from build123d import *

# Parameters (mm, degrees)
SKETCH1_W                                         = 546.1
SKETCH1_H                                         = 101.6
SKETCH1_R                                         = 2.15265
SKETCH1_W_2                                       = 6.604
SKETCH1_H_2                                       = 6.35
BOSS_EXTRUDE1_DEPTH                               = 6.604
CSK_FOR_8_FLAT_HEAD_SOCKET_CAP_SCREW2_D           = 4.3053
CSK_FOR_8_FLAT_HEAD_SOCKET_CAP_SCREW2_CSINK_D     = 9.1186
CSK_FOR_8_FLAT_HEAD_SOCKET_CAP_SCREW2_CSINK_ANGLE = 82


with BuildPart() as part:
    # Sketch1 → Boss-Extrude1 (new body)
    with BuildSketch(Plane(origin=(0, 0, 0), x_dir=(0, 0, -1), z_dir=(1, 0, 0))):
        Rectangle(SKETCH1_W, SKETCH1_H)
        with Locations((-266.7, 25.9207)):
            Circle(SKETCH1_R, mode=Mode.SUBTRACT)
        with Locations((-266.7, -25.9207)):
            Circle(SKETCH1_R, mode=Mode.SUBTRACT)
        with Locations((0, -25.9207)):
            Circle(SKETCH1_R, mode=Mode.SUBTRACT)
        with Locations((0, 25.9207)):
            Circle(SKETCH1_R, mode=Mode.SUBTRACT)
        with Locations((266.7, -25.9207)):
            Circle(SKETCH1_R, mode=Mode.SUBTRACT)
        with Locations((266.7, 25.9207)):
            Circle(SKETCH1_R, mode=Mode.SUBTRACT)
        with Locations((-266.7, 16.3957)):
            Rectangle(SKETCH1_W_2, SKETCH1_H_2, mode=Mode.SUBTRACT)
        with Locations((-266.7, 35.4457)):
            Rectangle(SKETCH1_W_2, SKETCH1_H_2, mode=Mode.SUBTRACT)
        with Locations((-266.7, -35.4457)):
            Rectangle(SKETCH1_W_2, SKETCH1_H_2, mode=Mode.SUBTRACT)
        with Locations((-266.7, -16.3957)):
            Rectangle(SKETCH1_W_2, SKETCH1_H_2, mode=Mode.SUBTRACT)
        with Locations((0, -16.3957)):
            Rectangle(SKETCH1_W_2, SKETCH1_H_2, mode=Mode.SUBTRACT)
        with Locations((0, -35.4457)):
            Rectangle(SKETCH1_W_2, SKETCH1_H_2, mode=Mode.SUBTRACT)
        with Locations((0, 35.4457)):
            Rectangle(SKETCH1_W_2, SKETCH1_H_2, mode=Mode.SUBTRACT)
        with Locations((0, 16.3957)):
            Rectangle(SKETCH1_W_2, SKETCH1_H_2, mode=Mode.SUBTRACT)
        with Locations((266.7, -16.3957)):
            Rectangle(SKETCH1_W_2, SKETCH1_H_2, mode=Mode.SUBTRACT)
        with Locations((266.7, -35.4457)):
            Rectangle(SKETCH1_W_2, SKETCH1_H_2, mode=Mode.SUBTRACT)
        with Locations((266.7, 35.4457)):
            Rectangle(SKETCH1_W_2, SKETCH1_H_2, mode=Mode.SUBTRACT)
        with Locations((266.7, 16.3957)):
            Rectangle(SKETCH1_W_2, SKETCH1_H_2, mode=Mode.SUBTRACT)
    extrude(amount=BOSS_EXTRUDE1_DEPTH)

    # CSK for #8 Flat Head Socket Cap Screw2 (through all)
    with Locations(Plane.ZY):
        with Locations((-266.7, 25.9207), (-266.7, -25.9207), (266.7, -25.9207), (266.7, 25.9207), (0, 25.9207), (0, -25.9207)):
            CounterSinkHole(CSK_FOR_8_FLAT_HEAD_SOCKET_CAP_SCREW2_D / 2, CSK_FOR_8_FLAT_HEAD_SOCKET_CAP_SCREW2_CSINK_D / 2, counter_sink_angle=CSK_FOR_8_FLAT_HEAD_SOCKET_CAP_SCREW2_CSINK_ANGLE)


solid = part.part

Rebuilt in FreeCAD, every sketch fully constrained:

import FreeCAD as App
import Part
import Sketcher
from FreeCAD import Vector
Q = App.Units.Quantity

doc = App.newDocument("Part")
body = doc.addObject("PartDesign::Body", "Body")

# Sketch on YZ plane
sketch1 = body.newObject("Sketcher::SketchObject", "Sketch")
sketch1.AttachmentSupport = (doc.getObject("YZ_Plane"), [""])
sketch1.MapMode = "FlatFace"
sketch1.addGeometry([
    Part.LineSegment(Vector(50.8, 273.05, 0), Vector(-50.8, 273.05, 0)),  # 0
    Part.LineSegment(Vector(-50.8, 273.05, 0), Vector(-50.8, -273.05, 0)),  # 1
    Part.LineSegment(Vector(-50.8, -273.05, 0), Vector(50.8, -273.05, 0)),  # 2
    Part.LineSegment(Vector(50.8, -273.05, 0), Vector(50.8, 273.05, 0)),  # 3
    Part.LineSegment(Vector(-38.6207, 263.398, 0), Vector(-38.6207, 270.002, 0)),  # 4
    Part.LineSegment(Vector(-38.6207, 270.002, 0), Vector(-32.2707, 270.002, 0)),  # 5
    Part.LineSegment(Vector(-32.2707, 270.002, 0), Vector(-32.2707, 263.398, 0)),  # 6
    Part.LineSegment(Vector(-32.2707, 263.398, 0), Vector(-38.6207, 263.398, 0)),  # 7
    Part.Circle(Vector(-25.9207, 266.7, 0), Vector(0, 0, 1), 2.15265),  # 8
    Part.LineSegment(Vector(-38.6207, -3.302, 0), Vector(-38.6207, 3.302, 0)),  # 9
    Part.LineSegment(Vector(-38.6207, 3.302, 0), Vector(-32.2707, 3.302, 0)),  # 10
    Part.LineSegment(Vector(-32.2707, 3.302, 0), Vector(-32.2707, -3.302, 0)),  # 11
    Part.LineSegment(Vector(-32.2707, -3.302, 0), Vector(-38.6207, -3.302, 0)),  # 12
    Part.Circle(Vector(-25.9207, 0, 0), Vector(0, 0, 1), 2.15265),  # 13
    Part.LineSegment(Vector(-19.5707, 263.398, 0), Vector(-19.5707, 270.002, 0)),  # 14
    Part.LineSegment(Vector(-19.5707, 270.002, 0), Vector(-13.2207, 270.002, 0)),  # 15
    Part.LineSegment(Vector(-13.2207, 270.002, 0), Vector(-13.2207, 263.398, 0)),  # 16
    Part.LineSegment(Vector(-13.2207, 263.398, 0), Vector(-19.5707, 263.398, 0)),  # 17
    Part.LineSegment(Vector(-19.5707, -3.302, 0), Vector(-19.5707, 3.302, 0)),  # 18
    Part.LineSegment(Vector(-19.5707, 3.302, 0), Vector(-13.2207, 3.302, 0)),  # 19
    Part.LineSegment(Vector(-13.2207, 3.302, 0), Vector(-13.2207, -3.302, 0)),  # 20
    Part.LineSegment(Vector(-13.2207, -3.302, 0), Vector(-19.5707, -3.302, 0)),  # 21
    Part.LineSegment(Vector(-38.6207, -270.002, 0), Vector(-38.6207, -263.398, 0)),  # 22
    Part.LineSegment(Vector(-38.6207, -263.398, 0), Vector(-32.2707, -263.398, 0)),  # 23
    Part.LineSegment(Vector(-32.2707, -263.398, 0), Vector(-32.2707, -270.002, 0)),  # 24
    Part.LineSegment(Vector(-32.2707, -270.002, 0), Vector(-38.6207, -270.002, 0)),  # 25
    Part.Circle(Vector(-25.9207, -266.7, 0), Vector(0, 0, 1), 2.15265),  # 26
    Part.LineSegment(Vector(-19.5707, -270.002, 0), Vector(-19.5707, -263.398, 0)),  # 27
    Part.LineSegment(Vector(-19.5707, -263.398, 0), Vector(-13.2207, -263.398, 0)),  # 28
    Part.LineSegment(Vector(-13.2207, -263.398, 0), Vector(-13.2207, -270.002, 0)),  # 29
    Part.LineSegment(Vector(-13.2207, -270.002, 0), Vector(-19.5707, -270.002, 0)),  # 30
    Part.LineSegment(Vector(13.2207, 263.398, 0), Vector(13.2207, 270.002, 0)),  # 31
    Part.LineSegment(Vector(13.2207, 270.002, 0), Vector(19.5707, 270.002, 0)),  # 32
    Part.LineSegment(Vector(19.5707, 270.002, 0), Vector(19.5707, 263.398, 0)),  # 33
    Part.LineSegment(Vector(19.5707, 263.398, 0), Vector(13.2207, 263.398, 0)),  # 34
    Part.LineSegment(Vector(13.2207, -3.302, 0), Vector(13.2207, 3.302, 0)),  # 35
    Part.LineSegment(Vector(13.2207, 3.302, 0), Vector(19.5707, 3.302, 0)),  # 36
    Part.LineSegment(Vector(19.5707, 3.302, 0), Vector(19.5707, -3.302, 0)),  # 37
    Part.LineSegment(Vector(19.5707, -3.302, 0), Vector(13.2207, -3.302, 0)),  # 38
    Part.Circle(Vector(25.9207, 266.7, 0), Vector(0, 0, 1), 2.15265),  # 39
    Part.LineSegment(Vector(32.2707, 263.398, 0), Vector(32.2707, 270.002, 0)),  # 40
    Part.LineSegment(Vector(32.2707, 270.002, 0), Vector(38.6207, 270.002, 0)),  # 41
    Part.LineSegment(Vector(38.6207, 270.002, 0), Vector(38.6207, 263.398, 0)),  # 42
    Part.LineSegment(Vector(38.6207, 263.398, 0), Vector(32.2707, 263.398, 0)),  # 43
    Part.Circle(Vector(25.9207, 0, 0), Vector(0, 0, 1), 2.15265),  # 44
    Part.LineSegment(Vector(32.2707, -3.302, 0), Vector(32.2707, 3.302, 0)),  # 45
    Part.LineSegment(Vector(32.2707, 3.302, 0), Vector(38.6207, 3.302, 0)),  # 46
    Part.LineSegment(Vector(38.6207, 3.302, 0), Vector(38.6207, -3.302, 0)),  # 47
    Part.LineSegment(Vector(38.6207, -3.302, 0), Vector(32.2707, -3.302, 0)),  # 48
    Part.LineSegment(Vector(13.2207, -270.002, 0), Vector(13.2207, -263.398, 0)),  # 49
    Part.LineSegment(Vector(13.2207, -263.398, 0), Vector(19.5707, -263.398, 0)),  # 50
    Part.LineSegment(Vector(19.5707, -263.398, 0), Vector(19.5707, -270.002, 0)),  # 51
    Part.LineSegment(Vector(19.5707, -270.002, 0), Vector(13.2207, -270.002, 0)),  # 52
    Part.Circle(Vector(25.9207, -266.7, 0), Vector(0, 0, 1), 2.15265),  # 53
    Part.LineSegment(Vector(32.2707, -270.002, 0), Vector(32.2707, -263.398, 0)),  # 54
    Part.LineSegment(Vector(32.2707, -263.398, 0), Vector(38.6207, -263.398, 0)),  # 55
    Part.LineSegment(Vector(38.6207, -263.398, 0), Vector(38.6207, -270.002, 0)),  # 56
    Part.LineSegment(Vector(38.6207, -270.002, 0), Vector(32.2707, -270.002, 0)),  # 57
], False)
sketch1.addConstraint([
    Sketcher.Constraint("Coincident", 0, 2, 1, 1),
    Sketcher.Constraint("Coincident", 1, 2, 2, 1),
    Sketcher.Constraint("Coincident", 2, 2, 3, 1),
    Sketcher.Constraint("Coincident", 3, 2, 0, 1),
    Sketcher.Constraint("Coincident", 4, 2, 5, 1),
    Sketcher.Constraint("Coincident", 5, 2, 6, 1),
    Sketcher.Constraint("Coincident", 6, 2, 7, 1),
    Sketcher.Constraint("Coincident", 7, 2, 4, 1),
    Sketcher.Constraint("Coincident", 9, 2, 10, 1),
    Sketcher.Constraint("Coincident", 10, 2, 11, 1),
    Sketcher.Constraint("Coincident", 11, 2, 12, 1),
    Sketcher.Constraint("Coincident", 12, 2, 9, 1),
    Sketcher.Constraint("Coincident", 14, 2, 15, 1),
    Sketcher.Constraint("Coincident", 15, 2, 16, 1),
    Sketcher.Constraint("Coincident", 16, 2, 17, 1),
    Sketcher.Constraint("Coincident", 17, 2, 14, 1),
    Sketcher.Constraint("Coincident", 18, 2, 19, 1),
    Sketcher.Constraint("Coincident", 19, 2, 20, 1),
    Sketcher.Constraint("Coincident", 20, 2, 21, 1),
    Sketcher.Constraint("Coincident", 21, 2, 18, 1),
    Sketcher.Constraint("Coincident", 22, 2, 23, 1),
    Sketcher.Constraint("Coincident", 23, 2, 24, 1),
    Sketcher.Constraint("Coincident", 24, 2, 25, 1),
    Sketcher.Constraint("Coincident", 25, 2, 22, 1),
    Sketcher.Constraint("Coincident", 27, 2, 28, 1),
    Sketcher.Constraint("Coincident", 28, 2, 29, 1),
    Sketcher.Constraint("Coincident", 29, 2, 30, 1),
    Sketcher.Constraint("Coincident", 30, 2, 27, 1),
    Sketcher.Constraint("Coincident", 31, 2, 32, 1),
    Sketcher.Constraint("Coincident", 32, 2, 33, 1),
    Sketcher.Constraint("Coincident", 33, 2, 34, 1),
    Sketcher.Constraint("Coincident", 34, 2, 31, 1),
    Sketcher.Constraint("Coincident", 35, 2, 36, 1),
    Sketcher.Constraint("Coincident", 36, 2, 37, 1),
    Sketcher.Constraint("Coincident", 37, 2, 38, 1),
    Sketcher.Constraint("Coincident", 38, 2, 35, 1),
    Sketcher.Constraint("Coincident", 40, 2, 41, 1),
    Sketcher.Constraint("Coincident", 41, 2, 42, 1),
    Sketcher.Constraint("Coincident", 42, 2, 43, 1),
    Sketcher.Constraint("Coincident", 43, 2, 40, 1),
    Sketcher.Constraint("Coincident", 45, 2, 46, 1),
    Sketcher.Constraint("Coincident", 46, 2, 47, 1),
    Sketcher.Constraint("Coincident", 47, 2, 48, 1),
    Sketcher.Constraint("Coincident", 48, 2, 45, 1),
    Sketcher.Constraint("Coincident", 49, 2, 50, 1),
    Sketcher.Constraint("Coincident", 50, 2, 51, 1),
    Sketcher.Constraint("Coincident", 51, 2, 52, 1),
    Sketcher.Constraint("Coincident", 52, 2, 49, 1),
    Sketcher.Constraint("Coincident", 54, 2, 55, 1),
    Sketcher.Constraint("Coincident", 55, 2, 56, 1),
    Sketcher.Constraint("Coincident", 56, 2, 57, 1),
    Sketcher.Constraint("Coincident", 57, 2, 54, 1),
    Sketcher.Constraint("Horizontal", 0),
    Sketcher.Constraint("Vertical", 1),
    Sketcher.Constraint("Horizontal", 2),
    Sketcher.Constraint("Vertical", 3),
    Sketcher.Constraint("Vertical", 4),
    Sketcher.Constraint("Horizontal", 5),
    Sketcher.Constraint("Vertical", 6),
    Sketcher.Constraint("Horizontal", 7),
    Sketcher.Constraint("Vertical", 9),
    Sketcher.Constraint("Horizontal", 10),
    Sketcher.Constraint("Vertical", 11),
    Sketcher.Constraint("Horizontal", 12),
    Sketcher.Constraint("Vertical", 14),
    Sketcher.Constraint("Horizontal", 15),
    Sketcher.Constraint("Vertical", 16),
    Sketcher.Constraint("Horizontal", 17),
    Sketcher.Constraint("Vertical", 18),
    Sketcher.Constraint("Horizontal", 19),
    Sketcher.Constraint("Vertical", 20),
    Sketcher.Constraint("Horizontal", 21),
    Sketcher.Constraint("Vertical", 22),
    Sketcher.Constraint("Horizontal", 23),
    Sketcher.Constraint("Vertical", 24),
    Sketcher.Constraint("Horizontal", 25),
    Sketcher.Constraint("Vertical", 27),
    Sketcher.Constraint("Horizontal", 28),
    Sketcher.Constraint("Vertical", 29),
    Sketcher.Constraint("Horizontal", 30),
    Sketcher.Constraint("Vertical", 31),
    Sketcher.Constraint("Horizontal", 32),
    Sketcher.Constraint("Vertical", 33),
    Sketcher.Constraint("Horizontal", 34),
    Sketcher.Constraint("Vertical", 35),
    Sketcher.Constraint("Horizontal", 36),
    Sketcher.Constraint("Vertical", 37),
    Sketcher.Constraint("Horizontal", 38),
    Sketcher.Constraint("Vertical", 40),
    Sketcher.Constraint("Horizontal", 41),
    Sketcher.Constraint("Vertical", 42),
    Sketcher.Constraint("Horizontal", 43),
    Sketcher.Constraint("Vertical", 45),
    Sketcher.Constraint("Horizontal", 46),
    Sketcher.Constraint("Vertical", 47),
    Sketcher.Constraint("Horizontal", 48),
    Sketcher.Constraint("Vertical", 49),
    Sketcher.Constraint("Horizontal", 50),
    Sketcher.Constraint("Vertical", 51),
    Sketcher.Constraint("Horizontal", 52),
    Sketcher.Constraint("Vertical", 54),
    Sketcher.Constraint("Horizontal", 55),
    Sketcher.Constraint("Vertical", 56),
    Sketcher.Constraint("Horizontal", 57),
    Sketcher.Constraint("Equal", 8, 13),
    Sketcher.Constraint("Equal", 13, 26),
    Sketcher.Constraint("Equal", 26, 39),
    Sketcher.Constraint("Equal", 39, 44),
    Sketcher.Constraint("Equal", 44, 53),
    Sketcher.Constraint("Symmetric", 26, 3, 39, 3, -1, 1),
    Sketcher.Constraint("Symmetric", 13, 3, 44, 3, -1, 1),
    Sketcher.Constraint("Symmetric", 8, 3, 53, 3, -1, 1),
    Sketcher.Constraint("Symmetric", 0, 2, 2, 2, -1, 1),
    Sketcher.Constraint("Symmetric", 29, 2, 31, 2, -1, 1),
    Sketcher.Constraint("Symmetric", 27, 2, 33, 2, -1, 1),
    Sketcher.Constraint("Symmetric", 20, 2, 35, 2, -1, 1),
    Sketcher.Constraint("Symmetric", 18, 2, 37, 2, -1, 1),
    Sketcher.Constraint("Symmetric", 24, 2, 40, 2, -1, 1),
    Sketcher.Constraint("Symmetric", 22, 2, 42, 2, -1, 1),
    Sketcher.Constraint("Symmetric", 11, 2, 45, 2, -1, 1),
    Sketcher.Constraint("Symmetric", 9, 2, 47, 2, -1, 1),
    Sketcher.Constraint("Symmetric", 16, 2, 49, 2, -1, 1),
    Sketcher.Constraint("Symmetric", 14, 2, 51, 2, -1, 1),
    Sketcher.Constraint("Symmetric", 6, 2, 54, 2, -1, 1),
    Sketcher.Constraint("Symmetric", 4, 2, 56, 2, -1, 1),
    Sketcher.Constraint("Symmetric", 8, 3, 39, 3, -2),
    Sketcher.Constraint("Symmetric", 15, 2, 31, 2, -2),
    Sketcher.Constraint("Symmetric", 17, 2, 33, 2, -2),
    Sketcher.Constraint("Symmetric", 5, 2, 40, 2, -2),
    Sketcher.Constraint("Symmetric", 7, 2, 42, 2, -2),
    Sketcher.Constraint("PointOnObject", 13, 3, -1),
    Sketcher.Constraint("Horizontal", 5, 2, 14, 2),
    Sketcher.Constraint("Horizontal", 7, 2, 16, 2),
    Sketcher.Constraint("Horizontal", 10, 2, 18, 2),
    Sketcher.Constraint("Horizontal", 12, 2, 20, 2),
    Sketcher.Constraint("Horizontal", 19, 2, 35, 2),
    Sketcher.Constraint("Vertical", 8, 3, 13, 3),
    Sketcher.Constraint("Vertical", 7, 2, 9, 2),
    Sketcher.Constraint("Vertical", 6, 2, 10, 2),
    Sketcher.Constraint("Vertical", 17, 2, 18, 2),
    Sketcher.Constraint("Vertical", 16, 2, 19, 2),
    Sketcher.Constraint("Equal", 12, 15),
    Sketcher.Constraint("Equal", 6, 9),
    Sketcher.Constraint("DistanceX", 0, 2, 0, 1, Q("4 in")),
    Sketcher.Constraint("DistanceY", 1, 2, 1, 1, Q("21.5 in")),
    Sketcher.Constraint("DistanceY", 26, 3, 8, 3, Q("21 in")),
    Sketcher.Constraint("DistanceX", 4, 2, 15, 2, Q("1 in")),
    Sketcher.Constraint("Diameter", 8, Q("0.1695 in")),
    Sketcher.Constraint("DistanceX", 5, 1, 5, 2, Q("0.25 in")),
    Sketcher.Constraint("DistanceY", 4, 1, 4, 2, Q("0.26 in")),
    Sketcher.Constraint("DistanceX", 4, 2, 8, 3, Q("0.5 in")),
    Sketcher.Constraint("DistanceY", -1, 1, 4, 2, Q("10.63 in")),
    Sketcher.Constraint("DistanceX", 8, 3, 39, 3, Q("2.041 in")),
])
pad1 = body.newObject("PartDesign::Pad", "Pad")
pad1.Profile = sketch1
pad1.Length = Q("0.26 in")

# Sketch on YZ plane
sketch2 = body.newObject("Sketcher::SketchObject", "Sketch001")
sketch2.AttachmentSupport = (doc.getObject("YZ_Plane"), [""])
sketch2.MapMode = "FlatFace"
sketch2.addGeometry([
    Part.Circle(Vector(25.9207, -266.7, 0), Vector(0, 0, 1), 2.15265),  # 0
    Part.Circle(Vector(-25.9207, -266.7, 0), Vector(0, 0, 1), 2.15265),  # 1
    Part.Circle(Vector(-25.9207, 266.7, 0), Vector(0, 0, 1), 2.15265),  # 2
    Part.Circle(Vector(25.9207, 266.7, 0), Vector(0, 0, 1), 2.15265),  # 3
    Part.Circle(Vector(25.9207, 0, 0), Vector(0, 0, 1), 2.15265),  # 4
    Part.Circle(Vector(-25.9207, 0, 0), Vector(0, 0, 1), 2.15265),  # 5
], False)
sketch2.addConstraint([
    Sketcher.Constraint("Equal", 0, 1),
    Sketcher.Constraint("Equal", 1, 2),
    Sketcher.Constraint("Equal", 2, 3),
    Sketcher.Constraint("Equal", 3, 4),
    Sketcher.Constraint("Equal", 4, 5),
    Sketcher.Constraint("Symmetric", 0, 3, 2, 3, -1, 1),
    Sketcher.Constraint("Symmetric", 1, 3, 3, 3, -1, 1),
    Sketcher.Constraint("Symmetric", 4, 3, 5, 3, -1, 1),
    Sketcher.Constraint("Symmetric", 0, 3, 1, 3, -2),
    Sketcher.Constraint("PointOnObject", 4, 3, -1),
    Sketcher.Constraint("Vertical", 3, 3, 4, 3),
    Sketcher.Constraint("DistanceY", 1, 3, 2, 3, Q("21 in")),
    Sketcher.Constraint("Diameter", 0, Q("0.1695 in")),
    Sketcher.Constraint("DistanceX", 1, 3, 0, 3, Q("2.041 in")),
])
doc.recompute()
hole = body.newObject("PartDesign::Hole", "Hole")
hole.Profile = sketch2
hole.ThreadType = "None"
hole.Diameter = Q("0.1695 in")
hole.DepthType = "ThroughAll"
hole.HoleCutType = "Countersink"
hole.HoleCutDiameter = Q("0.359 in")
hole.HoleCutCountersinkAngle = 82
hole.Reversed = True

doc.recompute()
